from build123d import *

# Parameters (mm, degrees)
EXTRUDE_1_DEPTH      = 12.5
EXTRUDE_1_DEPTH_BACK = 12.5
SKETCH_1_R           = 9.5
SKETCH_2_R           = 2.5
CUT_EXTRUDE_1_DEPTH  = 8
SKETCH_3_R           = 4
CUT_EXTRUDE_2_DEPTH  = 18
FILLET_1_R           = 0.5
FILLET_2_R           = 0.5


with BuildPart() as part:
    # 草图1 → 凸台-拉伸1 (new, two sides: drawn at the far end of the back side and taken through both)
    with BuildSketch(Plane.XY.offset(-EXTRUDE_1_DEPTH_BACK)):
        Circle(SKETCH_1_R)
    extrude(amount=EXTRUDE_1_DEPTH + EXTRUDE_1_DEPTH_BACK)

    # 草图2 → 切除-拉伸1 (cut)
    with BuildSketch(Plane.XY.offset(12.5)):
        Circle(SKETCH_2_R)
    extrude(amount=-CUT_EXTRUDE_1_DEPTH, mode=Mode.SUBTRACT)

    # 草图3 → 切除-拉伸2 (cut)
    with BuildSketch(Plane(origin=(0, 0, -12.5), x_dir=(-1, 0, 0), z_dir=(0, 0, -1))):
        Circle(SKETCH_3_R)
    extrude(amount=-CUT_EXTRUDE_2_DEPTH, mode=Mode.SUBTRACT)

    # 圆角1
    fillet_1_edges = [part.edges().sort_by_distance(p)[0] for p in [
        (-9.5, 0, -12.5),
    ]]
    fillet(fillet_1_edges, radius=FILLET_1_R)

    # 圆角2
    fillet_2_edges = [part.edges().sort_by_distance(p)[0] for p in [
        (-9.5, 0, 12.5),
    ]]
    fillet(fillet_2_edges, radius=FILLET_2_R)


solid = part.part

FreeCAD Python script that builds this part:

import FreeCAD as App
import Part
import Sketcher
Q = App.Units.Quantity


def edges_at(feature, points):
    """Names of the edges that pass closest to the given points."""
    edges = feature.Shape.Edges
    near = lambda p: min(range(len(edges)), key=lambda i: edges[i].distToShape(Part.Vertex(*p))[0])
    return sorted({f"Edge{near(p) + 1}" for p in points})

doc = App.newDocument("Part")
params = doc.addObject("Spreadsheet::Sheet", "Params")
for row, (alias, value) in enumerate([
    ("sketch1_diameter", "19 mm"),
    ("pad1_length", "12.5 mm"),
    ("pad1_length2", "12.5 mm"),
    ("sketch2_diameter", "5 mm"),
    ("pocket1_length", "8 mm"),
    ("sketch3_diameter", "8 mm"),
    ("pocket2_length", "18 mm"),
    ("fillet_radius", "0.5 mm"),
    ("fillet2_radius", "0.5 mm"),
], start=1):
    params.set(f"A{row}", alias)
    params.set(f"B{row}", "=" + value)
    params.setAlias(f"B{row}", alias)

body = doc.addObject("PartDesign::Body", "Body")

sketch1 = doc.addObject("Sketcher::SketchObject", "Sketch")
body.addObject(sketch1)
sketch1.AttachmentSupport = (doc.XY_Plane, [""])
sketch1.MapMode = "FlatFace"
sketch1.addGeometry(Part.Circle(App.Vector(0, 0, 0), App.Vector(0, 0, 1), 10), False)
sketch1.addConstraint([
    Sketcher.Constraint("Coincident", 0, 3, -1, 1),
    Sketcher.Constraint("Diameter", 0, Q("19 mm")),
])
sketch1.setExpression("Constraints[1]", "Params.sketch1_diameter")
pad1 = doc.addObject("PartDesign::Pad", "Pad")
body.addObject(pad1)
pad1.Profile = sketch1
pad1.Type = "TwoLengths"
pad1.setExpression("Length", "Params.pad1_length")
pad1.setExpression("Length2", "Params.pad1_length2")

sketch2 = doc.addObject("Sketcher::SketchObject", "Sketch001")
body.addObject(sketch2)
sketch2.AttachmentSupport = (doc.XY_Plane, [""])
sketch2.MapMode = "FlatFace"
sketch2.AttachmentOffset = App.Placement(App.Vector(0, 0, 12.5), App.Rotation())
sketch2.addGeometry(Part.Circle(App.Vector(0, 0, 0), App.Vector(0, 0, 1), 2.5), False)
sketch2.addConstraint([
    Sketcher.Constraint("Coincident", 0, 3, -1, 1),
    Sketcher.Constraint("Diameter", 0, Q("5 mm")),
])
sketch2.setExpression("Constraints[1]", "Params.sketch2_diameter")
pocket1 = doc.addObject("PartDesign::Pocket", "Pocket")
body.addObject(pocket1)
pocket1.Profile = sketch2
pocket1.setExpression("Length", "Params.pocket1_length")

sketch3 = doc.addObject("Sketcher::SketchObject", "Sketch002")
body.addObject(sketch3)
sketch3.AttachmentSupport = (doc.XY_Plane, [""])
sketch3.MapMode = "FlatFace"
sketch3.AttachmentOffset = App.Placement(App.Vector(0, 0, -12.5), App.Rotation())
sketch3.addGeometry(Part.Circle(App.Vector(0, 0, 0), App.Vector(0, 0, 1), 4), False)
sketch3.addConstraint([
    Sketcher.Constraint("Coincident", 0, 3, -1, 1),
    Sketcher.Constraint("Diameter", 0, Q("8 mm")),
])
sketch3.setExpression("Constraints[1]", "Params.sketch3_diameter")
pocket2 = doc.addObject("PartDesign::Pocket", "Pocket001")
body.addObject(pocket2)
pocket2.Profile = sketch3
pocket2.setExpression("Length", "Params.pocket2_length")
pocket2.Reversed = True
doc.recompute()

fillet = doc.addObject("PartDesign::Fillet", "Fillet")
body.addObject(fillet)
fillet.Base = (pocket2, edges_at(pocket2, [(-9.5, 0, -12.5)]))
fillet.setExpression("Radius", "Params.fillet_radius")
doc.recompute()

fillet2 = doc.addObject("PartDesign::Fillet", "Fillet001")
body.addObject(fillet2)
fillet2.Base = (fillet, edges_at(fillet, [(-9.5, 0, 12.5)]))
fillet2.setExpression("Radius", "Params.fillet2_radius")

doc.recompute()
